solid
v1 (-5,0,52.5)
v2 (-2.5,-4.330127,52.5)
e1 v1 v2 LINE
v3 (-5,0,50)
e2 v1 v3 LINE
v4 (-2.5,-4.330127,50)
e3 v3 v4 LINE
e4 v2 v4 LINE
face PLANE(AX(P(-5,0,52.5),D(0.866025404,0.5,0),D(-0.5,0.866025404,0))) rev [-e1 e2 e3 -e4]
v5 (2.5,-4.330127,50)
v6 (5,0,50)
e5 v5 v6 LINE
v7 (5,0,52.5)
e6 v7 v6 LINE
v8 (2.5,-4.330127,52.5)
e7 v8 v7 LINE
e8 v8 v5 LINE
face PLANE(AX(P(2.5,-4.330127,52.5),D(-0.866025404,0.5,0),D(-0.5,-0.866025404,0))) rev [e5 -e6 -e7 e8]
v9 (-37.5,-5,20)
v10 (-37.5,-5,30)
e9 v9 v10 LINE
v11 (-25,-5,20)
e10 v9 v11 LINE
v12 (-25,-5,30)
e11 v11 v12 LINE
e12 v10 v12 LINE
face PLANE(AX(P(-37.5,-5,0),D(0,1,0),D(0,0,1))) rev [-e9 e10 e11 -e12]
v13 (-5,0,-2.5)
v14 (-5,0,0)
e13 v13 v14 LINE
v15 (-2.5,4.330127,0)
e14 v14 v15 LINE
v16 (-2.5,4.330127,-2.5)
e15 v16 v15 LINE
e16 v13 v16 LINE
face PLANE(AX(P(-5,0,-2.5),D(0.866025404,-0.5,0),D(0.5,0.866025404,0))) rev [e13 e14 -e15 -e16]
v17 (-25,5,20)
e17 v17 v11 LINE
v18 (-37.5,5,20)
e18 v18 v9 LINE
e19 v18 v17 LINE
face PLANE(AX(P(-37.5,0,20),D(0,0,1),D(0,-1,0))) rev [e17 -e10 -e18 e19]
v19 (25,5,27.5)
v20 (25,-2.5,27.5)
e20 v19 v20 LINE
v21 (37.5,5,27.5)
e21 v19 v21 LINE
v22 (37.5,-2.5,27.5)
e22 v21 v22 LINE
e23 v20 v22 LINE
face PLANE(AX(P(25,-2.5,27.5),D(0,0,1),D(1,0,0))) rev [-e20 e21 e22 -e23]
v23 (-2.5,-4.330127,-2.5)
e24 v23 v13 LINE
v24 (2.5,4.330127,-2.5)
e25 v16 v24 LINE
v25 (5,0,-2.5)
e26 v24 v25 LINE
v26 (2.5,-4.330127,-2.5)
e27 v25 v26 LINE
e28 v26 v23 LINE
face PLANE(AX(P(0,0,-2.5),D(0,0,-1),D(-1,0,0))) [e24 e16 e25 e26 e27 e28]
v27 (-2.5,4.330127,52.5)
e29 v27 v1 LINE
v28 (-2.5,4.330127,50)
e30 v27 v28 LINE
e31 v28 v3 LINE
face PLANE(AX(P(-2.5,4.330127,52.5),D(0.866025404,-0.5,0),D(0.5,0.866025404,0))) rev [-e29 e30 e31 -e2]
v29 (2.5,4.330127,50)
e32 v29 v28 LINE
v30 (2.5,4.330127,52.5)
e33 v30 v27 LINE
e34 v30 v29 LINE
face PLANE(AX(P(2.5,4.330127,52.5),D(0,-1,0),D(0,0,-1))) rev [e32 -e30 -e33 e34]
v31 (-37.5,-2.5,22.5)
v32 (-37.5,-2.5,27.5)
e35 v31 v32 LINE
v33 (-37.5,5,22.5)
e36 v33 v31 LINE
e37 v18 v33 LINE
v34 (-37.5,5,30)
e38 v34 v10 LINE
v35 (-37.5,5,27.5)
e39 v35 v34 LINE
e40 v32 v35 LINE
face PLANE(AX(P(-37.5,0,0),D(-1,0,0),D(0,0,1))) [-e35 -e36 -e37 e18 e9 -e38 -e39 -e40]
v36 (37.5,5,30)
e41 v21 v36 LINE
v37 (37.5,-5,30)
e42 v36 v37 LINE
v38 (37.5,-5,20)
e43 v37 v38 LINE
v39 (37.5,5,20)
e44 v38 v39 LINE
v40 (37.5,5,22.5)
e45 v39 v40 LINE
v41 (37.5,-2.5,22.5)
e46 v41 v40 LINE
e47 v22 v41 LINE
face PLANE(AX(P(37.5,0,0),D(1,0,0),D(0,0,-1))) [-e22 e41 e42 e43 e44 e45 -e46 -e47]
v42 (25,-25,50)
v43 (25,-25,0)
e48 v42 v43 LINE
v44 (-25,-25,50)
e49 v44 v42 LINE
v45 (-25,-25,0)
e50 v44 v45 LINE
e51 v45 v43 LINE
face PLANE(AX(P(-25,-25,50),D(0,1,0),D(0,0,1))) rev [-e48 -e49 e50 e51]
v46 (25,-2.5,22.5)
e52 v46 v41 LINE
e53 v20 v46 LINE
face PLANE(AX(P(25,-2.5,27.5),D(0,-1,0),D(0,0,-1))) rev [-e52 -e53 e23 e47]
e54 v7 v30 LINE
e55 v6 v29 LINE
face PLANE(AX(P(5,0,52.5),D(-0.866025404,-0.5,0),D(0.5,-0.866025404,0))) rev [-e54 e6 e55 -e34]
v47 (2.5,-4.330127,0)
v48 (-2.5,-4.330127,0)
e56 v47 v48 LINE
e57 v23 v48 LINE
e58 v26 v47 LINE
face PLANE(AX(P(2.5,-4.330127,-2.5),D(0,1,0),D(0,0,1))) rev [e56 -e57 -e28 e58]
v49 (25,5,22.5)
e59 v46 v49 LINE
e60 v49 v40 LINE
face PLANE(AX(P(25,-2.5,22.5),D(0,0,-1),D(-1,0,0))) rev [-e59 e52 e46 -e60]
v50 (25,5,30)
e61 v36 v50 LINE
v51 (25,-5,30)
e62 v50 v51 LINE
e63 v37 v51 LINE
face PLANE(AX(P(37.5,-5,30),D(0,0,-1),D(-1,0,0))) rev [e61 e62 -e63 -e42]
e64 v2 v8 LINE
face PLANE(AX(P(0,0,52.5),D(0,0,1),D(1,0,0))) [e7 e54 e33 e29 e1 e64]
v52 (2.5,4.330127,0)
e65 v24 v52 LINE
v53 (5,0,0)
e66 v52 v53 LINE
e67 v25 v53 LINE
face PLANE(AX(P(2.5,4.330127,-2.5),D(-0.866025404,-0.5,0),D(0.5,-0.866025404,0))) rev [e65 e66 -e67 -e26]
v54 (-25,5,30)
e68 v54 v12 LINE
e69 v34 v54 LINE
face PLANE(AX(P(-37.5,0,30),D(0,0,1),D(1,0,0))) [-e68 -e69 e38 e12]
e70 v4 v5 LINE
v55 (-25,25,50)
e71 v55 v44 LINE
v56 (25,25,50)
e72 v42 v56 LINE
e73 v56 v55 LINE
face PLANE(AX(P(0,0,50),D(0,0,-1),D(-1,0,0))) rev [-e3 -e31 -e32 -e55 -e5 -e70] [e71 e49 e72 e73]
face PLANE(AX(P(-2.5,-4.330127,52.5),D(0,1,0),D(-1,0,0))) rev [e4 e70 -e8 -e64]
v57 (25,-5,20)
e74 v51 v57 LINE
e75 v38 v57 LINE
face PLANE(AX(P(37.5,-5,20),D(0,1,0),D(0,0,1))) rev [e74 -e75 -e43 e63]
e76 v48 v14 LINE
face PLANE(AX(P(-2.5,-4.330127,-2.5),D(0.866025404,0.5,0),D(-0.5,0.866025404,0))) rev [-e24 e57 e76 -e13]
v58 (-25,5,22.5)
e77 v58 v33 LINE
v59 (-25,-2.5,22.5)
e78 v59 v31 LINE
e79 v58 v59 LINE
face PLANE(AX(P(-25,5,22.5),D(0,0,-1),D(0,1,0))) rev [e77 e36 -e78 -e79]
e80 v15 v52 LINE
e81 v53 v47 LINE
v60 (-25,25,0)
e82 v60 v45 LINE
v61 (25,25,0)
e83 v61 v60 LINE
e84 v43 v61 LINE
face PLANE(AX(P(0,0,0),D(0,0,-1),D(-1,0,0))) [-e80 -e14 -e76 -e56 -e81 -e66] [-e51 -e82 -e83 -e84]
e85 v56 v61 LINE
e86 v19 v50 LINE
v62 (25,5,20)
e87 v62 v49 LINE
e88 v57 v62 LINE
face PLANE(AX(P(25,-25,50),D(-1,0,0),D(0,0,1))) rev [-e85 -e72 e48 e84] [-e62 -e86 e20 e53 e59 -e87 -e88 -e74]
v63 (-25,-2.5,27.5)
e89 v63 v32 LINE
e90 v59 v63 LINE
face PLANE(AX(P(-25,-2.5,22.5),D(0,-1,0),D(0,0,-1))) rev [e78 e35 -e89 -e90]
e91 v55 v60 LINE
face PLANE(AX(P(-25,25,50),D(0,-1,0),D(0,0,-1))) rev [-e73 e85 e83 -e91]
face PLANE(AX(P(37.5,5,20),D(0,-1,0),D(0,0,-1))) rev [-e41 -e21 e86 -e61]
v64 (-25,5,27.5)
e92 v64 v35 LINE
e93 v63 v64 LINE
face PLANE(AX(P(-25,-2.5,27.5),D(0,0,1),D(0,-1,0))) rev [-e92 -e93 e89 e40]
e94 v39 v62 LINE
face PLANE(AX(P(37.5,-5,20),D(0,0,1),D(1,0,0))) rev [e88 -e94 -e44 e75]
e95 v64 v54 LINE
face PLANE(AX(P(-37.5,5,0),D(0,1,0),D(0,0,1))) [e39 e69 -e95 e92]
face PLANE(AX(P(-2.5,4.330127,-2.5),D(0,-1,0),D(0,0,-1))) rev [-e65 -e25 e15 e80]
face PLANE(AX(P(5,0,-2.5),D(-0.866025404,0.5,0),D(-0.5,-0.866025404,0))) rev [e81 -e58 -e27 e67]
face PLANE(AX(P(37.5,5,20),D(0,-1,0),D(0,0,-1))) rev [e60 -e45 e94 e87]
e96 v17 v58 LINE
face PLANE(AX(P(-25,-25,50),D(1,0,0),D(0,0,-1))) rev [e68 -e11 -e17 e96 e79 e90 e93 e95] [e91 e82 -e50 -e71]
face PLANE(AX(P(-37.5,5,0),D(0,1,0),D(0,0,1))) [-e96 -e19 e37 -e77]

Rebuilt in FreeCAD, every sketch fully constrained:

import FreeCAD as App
import Part
import Sketcher

V = App.Vector
Q = App.Units.Quantity

doc = App.newDocument("Part")
params = doc.addObject("Spreadsheet::Sheet", "Params")
for row, (alias, value) in enumerate([
    ("sketch1_width", "50 mm"),
    ("pad1_length", "50 mm"),
    ("sketch2_width", "10 mm"),
    ("pad2_length", "12.5 mm"),
    ("sketch3_height", "5 mm"),
    ("sketch3_width", "7.5 mm"),
    ("pocket1_length", "12.5 mm"),
    ("sketch4_width", "10 mm"),
    ("pad3_length", "12.5 mm"),
    ("sketch5_height", "5 mm"),
    ("sketch5_width", "7.5 mm"),
    ("pocket2_length", "12.5 mm"),
    ("sketch6_width", "5 mm"),
    ("sketch6_length", "5 mm"),
    ("pad4_length", "2.5 mm"),
    ("sketch7_width", "5 mm"),
    ("sketch7_length", "5 mm"),
    ("pad5_length", "2.5 mm"),
], start=1):
    params.set(f"A{row}", alias)
    params.set(f"B{row}", "=" + value)
    params.setAlias(f"B{row}", alias)

body = doc.addObject("PartDesign::Body", "Body")

# Sketch on XY plane
sketch1 = body.newObject("Sketcher::SketchObject", "Sketch")
sketch1.AttachmentSupport = (doc.getObject("XY_Plane"), [""])
sketch1.MapMode = "FlatFace"
sketch1.addGeometry([
    Part.LineSegment(V(-25, 25, 0), V(-25, -25, 0)),
    Part.LineSegment(V(-25, -25, 0), V(25, -25, 0)),
    Part.LineSegment(V(25, -25, 0), V(25, 25, 0)),
    Part.LineSegment(V(25, 25, 0), V(-25, 25, 0)),
], False)
sketch1.addConstraint([
    Sketcher.Constraint("Coincident", 0, 2, 1, 1),
    Sketcher.Constraint("Coincident", 1, 2, 2, 1),
    Sketcher.Constraint("Coincident", 2, 2, 3, 1),
    Sketcher.Constraint("Coincident", 3, 2, 0, 1),
    Sketcher.Constraint("Vertical", 0),
    Sketcher.Constraint("Horizontal", 1),
    Sketcher.Constraint("Vertical", 2),
    Sketcher.Constraint("Horizontal", 3),
    Sketcher.Constraint("Symmetric", 0, 2, 2, 2, -1, 1),
    Sketcher.Constraint("Equal", 3, 0),
    Sketcher.Constraint("DistanceX", 1, 1, 1, 2, Q("50 mm")),
])
sketch1.setExpression("Constraints[10]", "Params.sketch1_width")
pad1 = body.newObject("PartDesign::Pad", "Pad")
pad1.Profile = sketch1
pad1.setExpression("Length", "Params.pad1_length")

# Sketch on YZ plane
sketch2 = body.newObject("Sketcher::SketchObject", "Sketch001")
sketch2.AttachmentSupport = (doc.getObject("YZ_Plane"), [""])
sketch2.MapMode = "FlatFace"
sketch2.AttachmentOffset = App.Placement(V(0, 0, -25), App.Rotation())
sketch2.addGeometry([
    Part.LineSegment(V(-5, 30, 0), V(5, 30, 0)),
    Part.LineSegment(V(5, 30, 0), V(5, 20, 0)),
    Part.LineSegment(V(5, 20, 0), V(-5, 20, 0)),
    Part.LineSegment(V(-5, 20, 0), V(-5, 30, 0)),
], False)
sketch2.addConstraint([
    Sketcher.Constraint("Coincident", 0, 2, 1, 1),
    Sketcher.Constraint("Coincident", 1, 2, 2, 1),
    Sketcher.Constraint("Coincident", 2, 2, 3, 1),
    Sketcher.Constraint("Coincident", 3, 2, 0, 1),
    Sketcher.Constraint("Horizontal", 0),
    Sketcher.Constraint("Vertical", 1),
    Sketcher.Constraint("Horizontal", 2),
    Sketcher.Constraint("Vertical", 3),
    Sketcher.Constraint("Equal", 2, 1),
    Sketcher.Constraint("DistanceX", 0, 1, 0, 2, Q("10 mm")),
    Sketcher.Constraint("DistanceX", -1, 1, 0, 2, Q("5 mm")),
    Sketcher.Constraint("DistanceY", -1, 1, 0, 2, Q("30 mm")),
])
sketch2.setExpression("Constraints[9]", "Params.sketch2_width")
pad2 = body.newObject("PartDesign::Pad", "Pad001")
pad2.Profile = sketch2
pad2.setExpression("Length", "Params.pad2_length")
pad2.Reversed = True

# Sketch on YZ plane
sketch3 = body.newObject("Sketcher::SketchObject", "Sketch002")
sketch3.AttachmentSupport = (doc.getObject("YZ_Plane"), [""])
sketch3.MapMode = "FlatFace"
sketch3.AttachmentOffset = App.Placement(V(0, 0, -37.5), App.Rotation())
sketch3.addGeometry([
    Part.LineSegment(V(5, 22, 0), V(-2, 22, 0)),
    Part.LineSegment(V(-2, 22, 0), V(-2, 28, 0)),
    Part.LineSegment(V(-2, 28, 0), V(5, 28, 0)),
    Part.LineSegment(V(5, 28, 0), V(5, 22, 0)),
], False)
sketch3.addConstraint([
    Sketcher.Constraint("Coincident", 0, 2, 1, 1),
    Sketcher.Constraint("Coincident", 1, 2, 2, 1),
    Sketcher.Constraint("Coincident", 2, 2, 3, 1),
    Sketcher.Constraint("Coincident", 3, 2, 0, 1),
    Sketcher.Constraint("Horizontal", 0),
    Sketcher.Constraint("Vertical", 1),
    Sketcher.Constraint("Horizontal", 2),
    Sketcher.Constraint("Vertical", 3),
    Sketcher.Constraint("DistanceY", 1, 1, 1, 2, Q("5 mm")),
    Sketcher.Constraint("DistanceX", 0, 2, 0, 1, Q("7.5 mm")),
    Sketcher.Constraint("DistanceX", -1, 1, 2, 2, Q("5 mm")),
    Sketcher.Constraint("DistanceY", -1, 1, 0, 2, Q("22.5 mm")),
])
sketch3.setExpression("Constraints[8]", "Params.sketch3_height")
sketch3.setExpression("Constraints[9]", "Params.sketch3_width")
pocket1 = body.newObject("PartDesign::Pocket", "Pocket")
pocket1.Profile = sketch3
pocket1.setExpression("Length", "Params.pocket1_length")
pocket1.Reversed = True

# Sketch on YZ plane
sketch4 = body.newObject("Sketcher::SketchObject", "Sketch003")
sketch4.AttachmentSupport = (doc.getObject("YZ_Plane"), [""])
sketch4.MapMode = "FlatFace"
sketch4.AttachmentOffset = App.Placement(V(0, 0, 25), App.Rotation())
sketch4.addGeometry([
    Part.LineSegment(V(5, 30, 0), V(-5, 30, 0)),
    Part.LineSegment(V(-5, 30, 0), V(-5, 20, 0)),
    Part.LineSegment(V(-5, 20, 0), V(5, 20, 0)),
    Part.LineSegment(V(5, 20, 0), V(5, 30, 0)),
], False)
sketch4.addConstraint([
    Sketcher.Constraint("Coincident", 0, 2, 1, 1),
    Sketcher.Constraint("Coincident", 1, 2, 2, 1),
    Sketcher.Constraint("Coincident", 2, 2, 3, 1),
    Sketcher.Constraint("Coincident", 3, 2, 0, 1),
    Sketcher.Constraint("Horizontal", 0),
    Sketcher.Constraint("Vertical", 1),
    Sketcher.Constraint("Horizontal", 2),
    Sketcher.Constraint("Vertical", 3),
    Sketcher.Constraint("Equal", 2, 1),
    Sketcher.Constraint("DistanceX", 0, 2, 0, 1, Q("10 mm")),
    Sketcher.Constraint("DistanceX", 0, 2, -1, 1, Q("5 mm")),
    Sketcher.Constraint("DistanceY", -1, 1, 0, 2, Q("30 mm")),
])
sketch4.setExpression("Constraints[9]", "Params.sketch4_width")
pad3 = body.newObject("PartDesign::Pad", "Pad002")
pad3.Profile = sketch4
pad3.setExpression("Length", "Params.pad3_length")

# Sketch on YZ plane
sketch5 = body.newObject("Sketcher::SketchObject", "Sketch004")
sketch5.AttachmentSupport = (doc.getObject("YZ_Plane"), [""])
sketch5.MapMode = "FlatFace"
sketch5.AttachmentOffset = App.Placement(V(0, 0, 37.5), App.Rotation())
sketch5.addGeometry([
    Part.LineSegment(V(5, 28, 0), V(-2, 28, 0)),
    Part.LineSegment(V(-2, 28, 0), V(-2, 22, 0)),
    Part.LineSegment(V(-2, 22, 0), V(5, 22, 0)),
    Part.LineSegment(V(5, 22, 0), V(5, 28, 0)),
], False)
sketch5.addConstraint([
    Sketcher.Constraint("Coincident", 0, 2, 1, 1),
    Sketcher.Constraint("Coincident", 1, 2, 2, 1),
    Sketcher.Constraint("Coincident", 2, 2, 3, 1),
    Sketcher.Constraint("Coincident", 3, 2, 0, 1),
    Sketcher.Constraint("Horizontal", 0),
    Sketcher.Constraint("Vertical", 1),
    Sketcher.Constraint("Horizontal", 2),
    Sketcher.Constraint("Vertical", 3),
    Sketcher.Constraint("DistanceY", 1, 2, 1, 1, Q("5 mm")),
    Sketcher.Constraint("DistanceX", 0, 2, 0, 1, Q("7.5 mm")),
    Sketcher.Constraint("DistanceX", -1, 1, 2, 2, Q("5 mm")),
    Sketcher.Constraint("DistanceY", -1, 1, 0, 2, Q("27.5 mm")),
])
sketch5.setExpression("Constraints[8]", "Params.sketch5_height")
sketch5.setExpression("Constraints[9]", "Params.sketch5_width")
pocket2 = body.newObject("PartDesign::Pocket", "Pocket001")
pocket2.Profile = sketch5
pocket2.setExpression("Length", "Params.pocket2_length")

# Sketch on XY plane
sketch6 = body.newObject("Sketcher::SketchObject", "Sketch005")
sketch6.AttachmentSupport = (doc.getObject("XY_Plane"), [""])
sketch6.MapMode = "FlatFace"
sketch6.AttachmentOffset = App.Placement(V(0, 0, 50), App.Rotation())
sketch6.addGeometry([
    Part.LineSegment(V(5, 0, 0), V(2, 4, 0)),  # 0
    Part.LineSegment(V(2, 4, 0), V(-2, 4, 0)),  # 1
    Part.LineSegment(V(-2, 4, 0), V(-5, 0, 0)),  # 2
    Part.LineSegment(V(-5, 0, 0), V(-2, -4, 0)),  # 3
    Part.LineSegment(V(-2, -4, 0), V(2, -4, 0)),  # 4
    Part.LineSegment(V(2, -4, 0), V(5, 0, 0)),  # 5
], False)
sketch6.addConstraint([
    Sketcher.Constraint("Coincident", 0, 2, 1, 1),
    Sketcher.Constraint("Coincident", 1, 2, 2, 1),
    Sketcher.Constraint("Coincident", 2, 2, 3, 1),
    Sketcher.Constraint("Coincident", 3, 2, 4, 1),
    Sketcher.Constraint("Coincident", 4, 2, 5, 1),
    Sketcher.Constraint("Coincident", 5, 2, 0, 1),
    Sketcher.Constraint("Horizontal", 1),
    Sketcher.Constraint("Horizontal", 4),
    Sketcher.Constraint("Symmetric", 0, 2, 3, 2, -1, 1),
    Sketcher.Constraint("Symmetric", 2, 2, 5, 2, -1, 1),
    Sketcher.Constraint("PointOnObject", 2, 2, -1),
    Sketcher.Constraint("Parallel", 2, 5),
    Sketcher.Constraint("Vertical", 1, 2, 3, 2),
    Sketcher.Constraint("DistanceX", 1, 2, 1, 1, Q("5 mm")),
    Sketcher.Constraint("Angle", 0, Q("120 deg")),
    Sketcher.Constraint("Distance", 0, Q("5 mm")),
])
sketch6.setExpression("Constraints[13]", "Params.sketch6_width")
sketch6.setExpression("Constraints[15]", "Params.sketch6_length")
pad4 = body.newObject("PartDesign::Pad", "Pad003")
pad4.Profile = sketch6
pad4.setExpression("Length", "Params.pad4_length")

# Sketch on XY plane
sketch7 = body.newObject("Sketcher::SketchObject", "Sketch006")
sketch7.AttachmentSupport = (doc.getObject("XY_Plane"), [""])
sketch7.MapMode = "FlatFace"
sketch7.addGeometry([
    Part.LineSegment(V(-5, 0, 0), V(-2, 4, 0)),  # 0
    Part.LineSegment(V(-2, 4, 0), V(2, 4, 0)),  # 1
    Part.LineSegment(V(2, 4, 0), V(5, 0, 0)),  # 2
    Part.LineSegment(V(5, 0, 0), V(2, -4, 0)),  # 3
    Part.LineSegment(V(2, -4, 0), V(-2, -4, 0)),  # 4
    Part.LineSegment(V(-2, -4, 0), V(-5, 0, 0)),  # 5
], False)
sketch7.addConstraint([
    Sketcher.Constraint("Coincident", 0, 2, 1, 1),
    Sketcher.Constraint("Coincident", 1, 2, 2, 1),
    Sketcher.Constraint("Coincident", 2, 2, 3, 1),
    Sketcher.Constraint("Coincident", 3, 2, 4, 1),
    Sketcher.Constraint("Coincident", 4, 2, 5, 1),
    Sketcher.Constraint("Coincident", 5, 2, 0, 1),
    Sketcher.Constraint("Horizontal", 1),
    Sketcher.Constraint("Horizontal", 4),
    Sketcher.Constraint("Symmetric", 0, 2, 3, 2, -1, 1),
    Sketcher.Constraint("Symmetric", 2, 2, 5, 2, -1, 1),
    Sketcher.Constraint("PointOnObject", 2, 2, -1),
    Sketcher.Constraint("Parallel", 2, 5),
    Sketcher.Constraint("Vertical", 1, 2, 3, 2),
    Sketcher.Constraint("DistanceX", 1, 1, 1, 2, Q("5 mm")),
    Sketcher.Constraint("Angle", 0, Q("60 deg")),
    Sketcher.Constraint("Distance", 0, Q("5 mm")),
])
sketch7.setExpression("Constraints[13]", "Params.sketch7_width")
sketch7.setExpression("Constraints[15]", "Params.sketch7_length")
pad5 = body.newObject("PartDesign::Pad", "Pad004")
pad5.Profile = sketch7
pad5.setExpression("Length", "Params.pad5_length")
pad5.Reversed = True

doc.recompute()
